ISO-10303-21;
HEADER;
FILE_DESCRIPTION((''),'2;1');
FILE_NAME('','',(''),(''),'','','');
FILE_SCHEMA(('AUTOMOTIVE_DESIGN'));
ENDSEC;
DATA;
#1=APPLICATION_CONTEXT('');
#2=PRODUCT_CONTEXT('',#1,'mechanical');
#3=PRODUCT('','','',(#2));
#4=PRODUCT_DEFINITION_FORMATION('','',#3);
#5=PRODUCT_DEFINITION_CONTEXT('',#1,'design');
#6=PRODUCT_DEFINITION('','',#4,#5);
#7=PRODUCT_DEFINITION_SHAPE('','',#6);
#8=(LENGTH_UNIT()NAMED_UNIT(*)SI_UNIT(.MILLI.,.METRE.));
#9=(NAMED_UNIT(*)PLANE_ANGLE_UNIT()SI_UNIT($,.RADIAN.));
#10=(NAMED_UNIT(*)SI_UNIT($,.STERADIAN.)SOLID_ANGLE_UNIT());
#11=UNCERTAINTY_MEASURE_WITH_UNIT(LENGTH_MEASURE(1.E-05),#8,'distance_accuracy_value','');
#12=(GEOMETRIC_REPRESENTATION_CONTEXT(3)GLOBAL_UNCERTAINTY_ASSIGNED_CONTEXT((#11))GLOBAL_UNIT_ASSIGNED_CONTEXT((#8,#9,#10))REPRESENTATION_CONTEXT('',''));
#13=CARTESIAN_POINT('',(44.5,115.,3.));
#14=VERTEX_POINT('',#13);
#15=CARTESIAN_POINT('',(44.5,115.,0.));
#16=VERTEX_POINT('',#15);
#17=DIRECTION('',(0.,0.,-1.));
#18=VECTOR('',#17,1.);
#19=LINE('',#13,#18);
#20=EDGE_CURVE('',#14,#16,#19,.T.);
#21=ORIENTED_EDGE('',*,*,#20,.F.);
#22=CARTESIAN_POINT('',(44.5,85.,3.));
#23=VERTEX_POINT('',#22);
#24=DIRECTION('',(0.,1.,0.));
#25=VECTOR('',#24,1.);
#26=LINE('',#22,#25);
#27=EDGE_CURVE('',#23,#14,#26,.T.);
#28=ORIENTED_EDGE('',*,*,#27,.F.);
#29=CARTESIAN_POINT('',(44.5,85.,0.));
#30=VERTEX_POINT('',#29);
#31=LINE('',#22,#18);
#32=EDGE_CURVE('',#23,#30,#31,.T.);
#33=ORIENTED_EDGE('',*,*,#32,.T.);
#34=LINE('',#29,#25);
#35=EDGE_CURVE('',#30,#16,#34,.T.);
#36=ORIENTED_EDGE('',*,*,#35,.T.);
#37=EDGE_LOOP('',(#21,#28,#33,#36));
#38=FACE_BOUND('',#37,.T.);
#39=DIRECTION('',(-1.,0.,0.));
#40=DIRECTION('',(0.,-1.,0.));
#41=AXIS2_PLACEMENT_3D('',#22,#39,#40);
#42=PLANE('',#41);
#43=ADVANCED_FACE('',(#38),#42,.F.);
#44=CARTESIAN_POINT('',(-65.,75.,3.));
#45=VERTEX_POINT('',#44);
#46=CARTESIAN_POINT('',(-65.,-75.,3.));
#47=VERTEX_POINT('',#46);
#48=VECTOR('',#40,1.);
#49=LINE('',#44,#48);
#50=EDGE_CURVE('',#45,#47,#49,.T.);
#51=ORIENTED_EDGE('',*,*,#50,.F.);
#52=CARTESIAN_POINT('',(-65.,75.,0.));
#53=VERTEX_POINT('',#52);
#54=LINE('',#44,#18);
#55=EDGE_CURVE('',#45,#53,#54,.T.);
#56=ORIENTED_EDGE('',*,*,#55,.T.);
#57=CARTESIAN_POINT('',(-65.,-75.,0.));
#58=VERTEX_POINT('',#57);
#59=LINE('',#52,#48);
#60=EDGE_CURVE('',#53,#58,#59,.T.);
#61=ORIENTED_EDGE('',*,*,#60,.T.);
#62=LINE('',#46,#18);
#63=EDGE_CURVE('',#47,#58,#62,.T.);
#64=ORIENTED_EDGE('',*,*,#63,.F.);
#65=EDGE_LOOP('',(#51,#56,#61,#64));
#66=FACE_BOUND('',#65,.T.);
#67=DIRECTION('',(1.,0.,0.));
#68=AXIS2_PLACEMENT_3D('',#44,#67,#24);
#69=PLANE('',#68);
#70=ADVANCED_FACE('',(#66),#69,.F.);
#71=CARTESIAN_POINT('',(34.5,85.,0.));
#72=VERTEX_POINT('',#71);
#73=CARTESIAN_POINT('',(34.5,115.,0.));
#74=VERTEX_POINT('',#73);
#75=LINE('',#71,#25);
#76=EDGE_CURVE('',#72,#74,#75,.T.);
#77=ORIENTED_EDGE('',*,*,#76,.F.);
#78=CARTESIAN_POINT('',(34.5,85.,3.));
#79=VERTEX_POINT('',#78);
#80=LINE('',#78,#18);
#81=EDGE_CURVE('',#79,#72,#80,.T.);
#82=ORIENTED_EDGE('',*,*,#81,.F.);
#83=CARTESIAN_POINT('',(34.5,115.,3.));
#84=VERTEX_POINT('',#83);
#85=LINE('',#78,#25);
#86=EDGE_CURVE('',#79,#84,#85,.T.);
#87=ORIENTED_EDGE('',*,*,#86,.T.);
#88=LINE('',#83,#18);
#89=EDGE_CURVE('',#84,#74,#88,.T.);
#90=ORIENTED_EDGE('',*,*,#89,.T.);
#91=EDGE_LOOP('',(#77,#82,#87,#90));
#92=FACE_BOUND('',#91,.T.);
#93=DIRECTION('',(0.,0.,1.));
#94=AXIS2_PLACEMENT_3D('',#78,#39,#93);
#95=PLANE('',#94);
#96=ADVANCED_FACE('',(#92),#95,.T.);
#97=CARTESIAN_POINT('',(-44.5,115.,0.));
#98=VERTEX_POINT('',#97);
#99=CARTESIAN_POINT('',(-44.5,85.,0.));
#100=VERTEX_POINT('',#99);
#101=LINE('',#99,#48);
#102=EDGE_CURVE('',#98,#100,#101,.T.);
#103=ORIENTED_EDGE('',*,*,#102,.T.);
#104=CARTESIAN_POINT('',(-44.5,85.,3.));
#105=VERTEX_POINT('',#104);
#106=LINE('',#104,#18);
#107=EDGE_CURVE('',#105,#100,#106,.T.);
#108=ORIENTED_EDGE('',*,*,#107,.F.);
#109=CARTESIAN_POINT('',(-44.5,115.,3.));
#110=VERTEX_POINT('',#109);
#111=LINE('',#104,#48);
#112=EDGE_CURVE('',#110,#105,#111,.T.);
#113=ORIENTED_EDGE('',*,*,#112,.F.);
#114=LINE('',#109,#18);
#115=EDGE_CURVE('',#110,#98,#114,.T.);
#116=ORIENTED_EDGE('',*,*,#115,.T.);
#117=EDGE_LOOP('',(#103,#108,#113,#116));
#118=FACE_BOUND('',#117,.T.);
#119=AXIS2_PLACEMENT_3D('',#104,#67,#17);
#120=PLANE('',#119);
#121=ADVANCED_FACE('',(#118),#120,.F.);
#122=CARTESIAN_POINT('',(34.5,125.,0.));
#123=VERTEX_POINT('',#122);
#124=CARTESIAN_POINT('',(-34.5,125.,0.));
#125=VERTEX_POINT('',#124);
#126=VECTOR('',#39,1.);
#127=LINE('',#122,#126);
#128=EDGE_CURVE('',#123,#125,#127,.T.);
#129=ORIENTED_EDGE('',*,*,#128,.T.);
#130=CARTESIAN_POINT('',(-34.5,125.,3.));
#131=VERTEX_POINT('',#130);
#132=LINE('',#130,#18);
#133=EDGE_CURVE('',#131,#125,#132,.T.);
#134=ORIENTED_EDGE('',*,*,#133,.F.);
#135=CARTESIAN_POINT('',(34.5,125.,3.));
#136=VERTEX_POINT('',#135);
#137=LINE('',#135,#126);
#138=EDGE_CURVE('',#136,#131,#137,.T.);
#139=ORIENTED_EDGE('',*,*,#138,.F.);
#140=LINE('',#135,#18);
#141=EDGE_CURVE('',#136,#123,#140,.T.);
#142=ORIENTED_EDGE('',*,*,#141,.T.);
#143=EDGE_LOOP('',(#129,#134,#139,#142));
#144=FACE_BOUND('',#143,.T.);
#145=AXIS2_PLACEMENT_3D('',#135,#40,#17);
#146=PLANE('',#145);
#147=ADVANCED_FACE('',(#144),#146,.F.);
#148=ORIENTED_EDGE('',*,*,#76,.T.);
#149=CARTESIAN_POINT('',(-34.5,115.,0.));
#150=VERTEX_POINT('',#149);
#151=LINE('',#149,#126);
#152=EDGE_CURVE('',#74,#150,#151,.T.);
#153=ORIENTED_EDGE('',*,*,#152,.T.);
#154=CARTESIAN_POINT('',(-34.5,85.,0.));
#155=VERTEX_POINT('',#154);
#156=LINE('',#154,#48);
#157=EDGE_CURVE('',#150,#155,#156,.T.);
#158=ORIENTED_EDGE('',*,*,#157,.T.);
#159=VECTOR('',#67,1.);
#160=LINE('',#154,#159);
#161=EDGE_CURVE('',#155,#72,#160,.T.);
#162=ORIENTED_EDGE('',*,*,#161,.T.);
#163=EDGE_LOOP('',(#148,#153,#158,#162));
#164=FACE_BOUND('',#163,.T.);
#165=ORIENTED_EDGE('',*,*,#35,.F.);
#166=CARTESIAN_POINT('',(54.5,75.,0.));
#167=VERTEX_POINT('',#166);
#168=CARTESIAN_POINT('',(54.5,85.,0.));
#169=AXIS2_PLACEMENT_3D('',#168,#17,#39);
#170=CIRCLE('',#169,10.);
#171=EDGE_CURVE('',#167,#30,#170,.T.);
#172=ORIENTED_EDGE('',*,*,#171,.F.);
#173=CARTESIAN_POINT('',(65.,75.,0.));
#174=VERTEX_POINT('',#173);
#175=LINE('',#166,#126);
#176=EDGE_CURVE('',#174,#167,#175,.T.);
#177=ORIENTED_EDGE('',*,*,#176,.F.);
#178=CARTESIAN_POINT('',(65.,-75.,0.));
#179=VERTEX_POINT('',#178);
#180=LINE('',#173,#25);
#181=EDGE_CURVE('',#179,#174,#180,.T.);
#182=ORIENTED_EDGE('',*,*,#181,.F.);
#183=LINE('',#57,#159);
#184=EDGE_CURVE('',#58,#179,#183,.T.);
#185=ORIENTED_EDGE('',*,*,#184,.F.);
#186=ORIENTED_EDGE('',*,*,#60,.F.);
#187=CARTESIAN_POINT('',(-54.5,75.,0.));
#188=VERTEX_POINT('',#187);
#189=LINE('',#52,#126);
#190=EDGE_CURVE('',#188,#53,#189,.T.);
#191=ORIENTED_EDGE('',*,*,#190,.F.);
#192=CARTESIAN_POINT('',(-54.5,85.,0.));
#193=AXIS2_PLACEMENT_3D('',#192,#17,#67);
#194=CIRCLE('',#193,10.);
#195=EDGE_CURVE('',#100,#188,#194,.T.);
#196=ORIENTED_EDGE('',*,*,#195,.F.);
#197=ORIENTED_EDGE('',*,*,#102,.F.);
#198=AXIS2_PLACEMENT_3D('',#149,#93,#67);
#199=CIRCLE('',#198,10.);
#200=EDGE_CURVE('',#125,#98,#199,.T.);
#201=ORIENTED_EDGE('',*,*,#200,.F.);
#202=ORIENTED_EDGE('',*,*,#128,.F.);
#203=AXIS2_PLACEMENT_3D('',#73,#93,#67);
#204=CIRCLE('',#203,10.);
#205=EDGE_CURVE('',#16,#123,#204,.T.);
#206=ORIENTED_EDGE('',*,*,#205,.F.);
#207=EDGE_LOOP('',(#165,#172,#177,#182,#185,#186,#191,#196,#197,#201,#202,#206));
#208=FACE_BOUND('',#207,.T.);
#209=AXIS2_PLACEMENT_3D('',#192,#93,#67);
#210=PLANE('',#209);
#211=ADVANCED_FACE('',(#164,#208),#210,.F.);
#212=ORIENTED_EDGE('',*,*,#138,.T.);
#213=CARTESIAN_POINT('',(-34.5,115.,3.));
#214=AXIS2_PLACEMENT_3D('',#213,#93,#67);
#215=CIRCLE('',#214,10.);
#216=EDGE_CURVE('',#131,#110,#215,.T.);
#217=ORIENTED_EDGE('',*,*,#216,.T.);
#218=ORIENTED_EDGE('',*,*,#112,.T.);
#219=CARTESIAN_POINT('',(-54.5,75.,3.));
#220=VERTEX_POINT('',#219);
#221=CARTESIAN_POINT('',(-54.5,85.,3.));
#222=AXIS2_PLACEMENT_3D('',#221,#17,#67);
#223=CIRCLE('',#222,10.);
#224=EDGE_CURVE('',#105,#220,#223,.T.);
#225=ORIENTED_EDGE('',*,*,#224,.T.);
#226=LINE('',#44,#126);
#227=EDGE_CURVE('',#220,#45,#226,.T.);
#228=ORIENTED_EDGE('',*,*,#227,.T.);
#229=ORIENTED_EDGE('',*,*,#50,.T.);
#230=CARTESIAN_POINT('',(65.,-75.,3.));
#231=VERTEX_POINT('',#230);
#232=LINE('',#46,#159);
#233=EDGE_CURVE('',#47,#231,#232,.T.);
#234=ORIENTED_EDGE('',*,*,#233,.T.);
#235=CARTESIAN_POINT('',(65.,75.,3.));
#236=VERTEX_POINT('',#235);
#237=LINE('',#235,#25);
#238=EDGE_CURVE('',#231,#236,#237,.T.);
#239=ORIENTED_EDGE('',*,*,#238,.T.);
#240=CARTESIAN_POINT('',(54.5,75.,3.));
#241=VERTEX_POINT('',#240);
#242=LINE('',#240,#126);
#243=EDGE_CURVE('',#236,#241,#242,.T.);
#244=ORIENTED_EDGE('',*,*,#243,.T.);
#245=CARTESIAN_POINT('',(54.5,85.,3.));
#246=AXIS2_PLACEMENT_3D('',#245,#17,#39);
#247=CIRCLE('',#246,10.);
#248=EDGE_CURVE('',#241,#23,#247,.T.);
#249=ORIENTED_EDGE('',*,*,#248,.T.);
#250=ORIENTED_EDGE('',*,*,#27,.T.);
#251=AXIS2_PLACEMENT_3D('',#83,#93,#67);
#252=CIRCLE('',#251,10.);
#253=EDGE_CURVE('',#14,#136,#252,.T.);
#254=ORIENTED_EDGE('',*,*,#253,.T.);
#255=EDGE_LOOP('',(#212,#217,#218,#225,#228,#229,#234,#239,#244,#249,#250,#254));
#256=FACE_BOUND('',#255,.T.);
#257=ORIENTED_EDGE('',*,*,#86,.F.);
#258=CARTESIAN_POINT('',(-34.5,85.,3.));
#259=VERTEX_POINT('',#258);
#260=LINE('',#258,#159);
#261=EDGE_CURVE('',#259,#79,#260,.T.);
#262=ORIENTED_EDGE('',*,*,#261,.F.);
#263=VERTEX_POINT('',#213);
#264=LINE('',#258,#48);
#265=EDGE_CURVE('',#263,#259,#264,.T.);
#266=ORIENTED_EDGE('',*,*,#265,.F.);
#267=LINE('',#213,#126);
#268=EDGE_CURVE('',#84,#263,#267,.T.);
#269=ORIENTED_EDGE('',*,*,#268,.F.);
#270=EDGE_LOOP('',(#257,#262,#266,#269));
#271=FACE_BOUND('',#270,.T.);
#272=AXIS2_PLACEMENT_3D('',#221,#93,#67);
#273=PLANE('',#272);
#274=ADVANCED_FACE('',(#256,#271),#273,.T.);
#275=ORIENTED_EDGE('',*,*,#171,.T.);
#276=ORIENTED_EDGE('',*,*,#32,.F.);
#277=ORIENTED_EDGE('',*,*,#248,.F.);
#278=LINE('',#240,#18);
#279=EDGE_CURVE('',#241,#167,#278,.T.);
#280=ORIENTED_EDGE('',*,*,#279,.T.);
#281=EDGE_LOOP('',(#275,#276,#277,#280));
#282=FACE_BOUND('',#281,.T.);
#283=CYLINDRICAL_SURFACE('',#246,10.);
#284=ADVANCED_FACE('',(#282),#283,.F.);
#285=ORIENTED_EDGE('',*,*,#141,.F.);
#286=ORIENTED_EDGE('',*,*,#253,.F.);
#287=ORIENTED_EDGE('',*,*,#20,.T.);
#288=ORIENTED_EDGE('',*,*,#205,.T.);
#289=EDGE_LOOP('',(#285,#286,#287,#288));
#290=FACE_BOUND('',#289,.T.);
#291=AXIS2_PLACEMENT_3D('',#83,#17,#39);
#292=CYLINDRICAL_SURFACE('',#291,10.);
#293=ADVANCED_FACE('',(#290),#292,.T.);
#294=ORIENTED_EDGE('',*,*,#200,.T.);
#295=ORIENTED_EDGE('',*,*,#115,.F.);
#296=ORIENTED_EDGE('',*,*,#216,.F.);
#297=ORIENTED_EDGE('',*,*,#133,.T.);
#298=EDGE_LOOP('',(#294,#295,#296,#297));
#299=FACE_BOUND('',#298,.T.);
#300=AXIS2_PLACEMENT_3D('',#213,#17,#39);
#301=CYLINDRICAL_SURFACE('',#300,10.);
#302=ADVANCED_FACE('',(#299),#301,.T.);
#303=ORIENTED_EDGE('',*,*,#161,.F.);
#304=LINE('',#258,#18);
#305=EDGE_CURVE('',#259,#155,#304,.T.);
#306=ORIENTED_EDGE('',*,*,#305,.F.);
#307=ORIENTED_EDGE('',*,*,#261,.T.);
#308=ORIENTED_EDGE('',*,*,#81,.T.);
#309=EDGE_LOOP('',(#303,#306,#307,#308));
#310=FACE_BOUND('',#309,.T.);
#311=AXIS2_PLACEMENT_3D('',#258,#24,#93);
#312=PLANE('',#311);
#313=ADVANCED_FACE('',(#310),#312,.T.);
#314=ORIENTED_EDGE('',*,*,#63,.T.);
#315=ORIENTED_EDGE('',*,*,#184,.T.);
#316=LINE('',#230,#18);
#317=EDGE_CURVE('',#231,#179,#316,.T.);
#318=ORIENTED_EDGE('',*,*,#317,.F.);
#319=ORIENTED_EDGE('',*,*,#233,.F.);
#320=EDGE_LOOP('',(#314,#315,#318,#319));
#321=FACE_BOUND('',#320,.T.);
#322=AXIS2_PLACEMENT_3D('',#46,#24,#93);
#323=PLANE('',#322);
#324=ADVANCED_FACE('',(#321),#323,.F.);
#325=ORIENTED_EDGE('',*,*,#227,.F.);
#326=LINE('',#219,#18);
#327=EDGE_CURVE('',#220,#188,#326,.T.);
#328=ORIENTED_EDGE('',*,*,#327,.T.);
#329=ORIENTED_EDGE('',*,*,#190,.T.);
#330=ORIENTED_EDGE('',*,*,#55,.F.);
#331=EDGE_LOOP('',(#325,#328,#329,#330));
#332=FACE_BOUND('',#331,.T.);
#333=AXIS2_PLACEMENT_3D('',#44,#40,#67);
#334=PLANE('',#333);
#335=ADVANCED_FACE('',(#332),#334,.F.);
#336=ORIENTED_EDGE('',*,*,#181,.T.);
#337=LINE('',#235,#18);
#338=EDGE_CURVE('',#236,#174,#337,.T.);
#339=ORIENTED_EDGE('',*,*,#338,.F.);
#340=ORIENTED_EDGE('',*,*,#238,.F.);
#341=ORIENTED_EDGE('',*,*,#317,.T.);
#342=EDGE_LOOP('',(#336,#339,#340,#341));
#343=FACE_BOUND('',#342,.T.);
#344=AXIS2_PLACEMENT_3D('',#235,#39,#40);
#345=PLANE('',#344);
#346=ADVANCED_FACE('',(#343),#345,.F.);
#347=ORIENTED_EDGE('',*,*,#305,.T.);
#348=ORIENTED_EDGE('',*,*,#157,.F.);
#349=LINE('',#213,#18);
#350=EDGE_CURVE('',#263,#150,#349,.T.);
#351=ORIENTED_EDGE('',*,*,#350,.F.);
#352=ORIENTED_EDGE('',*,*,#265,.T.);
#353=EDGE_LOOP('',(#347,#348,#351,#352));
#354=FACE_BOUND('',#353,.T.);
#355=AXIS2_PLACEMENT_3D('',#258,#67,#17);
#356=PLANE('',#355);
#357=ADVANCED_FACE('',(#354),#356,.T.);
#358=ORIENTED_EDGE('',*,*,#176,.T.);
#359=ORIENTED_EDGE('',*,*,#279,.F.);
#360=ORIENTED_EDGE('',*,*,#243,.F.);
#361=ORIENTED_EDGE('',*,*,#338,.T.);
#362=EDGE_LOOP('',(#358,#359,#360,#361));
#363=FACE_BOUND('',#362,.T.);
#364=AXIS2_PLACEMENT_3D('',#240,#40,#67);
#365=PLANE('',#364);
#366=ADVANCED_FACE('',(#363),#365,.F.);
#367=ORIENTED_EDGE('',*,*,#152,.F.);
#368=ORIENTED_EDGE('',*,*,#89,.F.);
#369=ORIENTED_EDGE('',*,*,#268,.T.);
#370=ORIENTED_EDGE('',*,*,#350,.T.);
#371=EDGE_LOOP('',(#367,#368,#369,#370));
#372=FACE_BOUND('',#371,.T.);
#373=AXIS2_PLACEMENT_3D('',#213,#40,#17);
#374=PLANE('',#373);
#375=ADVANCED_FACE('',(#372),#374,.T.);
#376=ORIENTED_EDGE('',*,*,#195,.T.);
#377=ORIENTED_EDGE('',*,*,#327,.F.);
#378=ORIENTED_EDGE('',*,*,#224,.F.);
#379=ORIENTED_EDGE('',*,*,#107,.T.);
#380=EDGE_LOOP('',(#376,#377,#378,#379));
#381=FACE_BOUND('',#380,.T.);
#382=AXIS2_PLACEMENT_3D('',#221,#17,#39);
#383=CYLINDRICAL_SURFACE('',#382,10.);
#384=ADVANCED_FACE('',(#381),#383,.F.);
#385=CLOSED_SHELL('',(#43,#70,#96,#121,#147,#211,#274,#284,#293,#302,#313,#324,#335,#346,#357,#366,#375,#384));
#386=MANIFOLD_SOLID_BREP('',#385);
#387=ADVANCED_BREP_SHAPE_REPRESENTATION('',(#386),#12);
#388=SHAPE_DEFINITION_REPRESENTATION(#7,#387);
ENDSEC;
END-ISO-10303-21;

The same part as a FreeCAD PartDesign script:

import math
import FreeCAD as App
import Part
import Sketcher

V = App.Vector


def add_polygon(sketch, points):
    """Adds a closed chain of lines whose ends are joined by coincident constraints."""
    first, n = sketch.GeometryCount, len(points)
    for a, b in zip(points, points[1:] + points[:1]):
        sketch.addGeometry(Part.LineSegment(App.Vector(*a, 0), App.Vector(*b, 0)), False)
    for i in range(n):
        sketch.addConstraint(Sketcher.Constraint("Coincident", first + i, 2, first + (i + 1) % n, 1))

doc = App.newDocument("Part")
body = doc.addObject("PartDesign::Body", "Body")

# Sketch on XY plane
sketch1 = doc.addObject("Sketcher::SketchObject", "Sketch")
body.addObject(sketch1)
sketch1.AttachmentSupport = (doc.XY_Plane, [""])
sketch1.MapMode = "FlatFace"
sketch1.addGeometry(Part.LineSegment(V(-54, 75, 0), V(-65, 75, 0)), False)  # 0
sketch1.addGeometry(Part.LineSegment(V(-65, 75, 0), V(-65, -75, 0)), False)  # 1
sketch1.addGeometry(Part.LineSegment(V(-65, -75, 0), V(65, -75, 0)), False)  # 2
sketch1.addGeometry(Part.LineSegment(V(65, -75, 0), V(65, 75, 0)), False)  # 3
sketch1.addGeometry(Part.LineSegment(V(65, 75, 0), V(54, 75, 0)), False)  # 4
sketch1.addGeometry(Part.ArcOfCircle(Part.Circle(V(54, 85, 0), V(0, 0, 1), 10), math.radians(180), math.radians(270)), False)  # 5
sketch1.addGeometry(Part.LineSegment(V(44, 85, 0), V(44, 115, 0)), False)  # 6
sketch1.addGeometry(Part.ArcOfCircle(Part.Circle(V(34, 115, 0), V(0, 0, 1), 10), math.radians(0), math.radians(90)), False)  # 7
sketch1.addGeometry(Part.LineSegment(V(34, 125, 0), V(-34, 125, 0)), False)  # 8
sketch1.addGeometry(Part.ArcOfCircle(Part.Circle(V(-34, 115, 0), V(0, 0, 1), 10), math.radians(90), math.radians(180)), False)  # 9
sketch1.addGeometry(Part.LineSegment(V(-44, 115, 0), V(-44, 85, 0)), False)  # 10
sketch1.addGeometry(Part.ArcOfCircle(Part.Circle(V(-54, 85, 0), V(0, 0, 1), 10), math.radians(-90), math.radians(0)), False)  # 11
add_polygon(sketch1, [(-34, 85), (-34, 115), (34, 115), (34, 85)])  # lines 12-15
sketch1.addConstraint([
    Sketcher.Constraint("Coincident", 0, 2, 1, 1),
    Sketcher.Constraint("Coincident", 1, 2, 2, 1),
    Sketcher.Constraint("Coincident", 2, 2, 3, 1),
    Sketcher.Constraint("Coincident", 3, 2, 4, 1),
    Sketcher.Constraint("Tangent", 4, 2, 5, 2),
    Sketcher.Constraint("Tangent", 5, 1, 6, 1),
    Sketcher.Constraint("Tangent", 6, 2, 7, 1),
    Sketcher.Constraint("Tangent", 7, 2, 8, 1),
    Sketcher.Constraint("Tangent", 8, 2, 9, 1),
    Sketcher.Constraint("Tangent", 9, 2, 10, 1),
    Sketcher.Constraint("Tangent", 10, 2, 11, 2),
    Sketcher.Constraint("Tangent", 11, 1, 0, 1),
    Sketcher.Constraint("Horizontal", 0),
    Sketcher.Constraint("Vertical", 1),
    Sketcher.Constraint("Horizontal", 2),
    Sketcher.Constraint("Vertical", 3),
    Sketcher.Constraint("Horizontal", 4),
    Sketcher.Constraint("Vertical", 6),
    Sketcher.Constraint("Horizontal", 8),
    Sketcher.Constraint("Vertical", 10),
    Sketcher.Constraint("Vertical", 12),
    Sketcher.Constraint("Horizontal", 13),
    Sketcher.Constraint("Vertical", 14),
    Sketcher.Constraint("Horizontal", 15),
    Sketcher.Constraint("Coincident", 12, 2, 9, 3),
    Sketcher.Constraint("Coincident", 13, 2, 7, 3),
    Sketcher.Constraint("Equal", 5, 7),
    Sketcher.Constraint("Equal", 9, 11),
    Sketcher.Constraint("Symmetric", 0, 2, 2, 2, -1, 1),
    Sketcher.Constraint("Symmetric", 5, 3, 11, 3, -2),
    Sketcher.Constraint("Horizontal", 10, 2, 14, 2),
    Sketcher.Constraint("Radius", 5, 10.0),
    Sketcher.Constraint("DistanceX", 2, 1, 2, 2, 130.0),
    Sketcher.Constraint("DistanceX", 8, 2, 8, 1, 69.0),
    Sketcher.Constraint("DistanceY", 1, 2, 1, 1, 150.0),
    Sketcher.Constraint("DistanceY", 6, 1, 6, 2, 30.0),
])
pad1 = doc.addObject("PartDesign::Pad", "Pad")
body.addObject(pad1)
pad1.Profile = sketch1
pad1.Length = 3

doc.recompute()
